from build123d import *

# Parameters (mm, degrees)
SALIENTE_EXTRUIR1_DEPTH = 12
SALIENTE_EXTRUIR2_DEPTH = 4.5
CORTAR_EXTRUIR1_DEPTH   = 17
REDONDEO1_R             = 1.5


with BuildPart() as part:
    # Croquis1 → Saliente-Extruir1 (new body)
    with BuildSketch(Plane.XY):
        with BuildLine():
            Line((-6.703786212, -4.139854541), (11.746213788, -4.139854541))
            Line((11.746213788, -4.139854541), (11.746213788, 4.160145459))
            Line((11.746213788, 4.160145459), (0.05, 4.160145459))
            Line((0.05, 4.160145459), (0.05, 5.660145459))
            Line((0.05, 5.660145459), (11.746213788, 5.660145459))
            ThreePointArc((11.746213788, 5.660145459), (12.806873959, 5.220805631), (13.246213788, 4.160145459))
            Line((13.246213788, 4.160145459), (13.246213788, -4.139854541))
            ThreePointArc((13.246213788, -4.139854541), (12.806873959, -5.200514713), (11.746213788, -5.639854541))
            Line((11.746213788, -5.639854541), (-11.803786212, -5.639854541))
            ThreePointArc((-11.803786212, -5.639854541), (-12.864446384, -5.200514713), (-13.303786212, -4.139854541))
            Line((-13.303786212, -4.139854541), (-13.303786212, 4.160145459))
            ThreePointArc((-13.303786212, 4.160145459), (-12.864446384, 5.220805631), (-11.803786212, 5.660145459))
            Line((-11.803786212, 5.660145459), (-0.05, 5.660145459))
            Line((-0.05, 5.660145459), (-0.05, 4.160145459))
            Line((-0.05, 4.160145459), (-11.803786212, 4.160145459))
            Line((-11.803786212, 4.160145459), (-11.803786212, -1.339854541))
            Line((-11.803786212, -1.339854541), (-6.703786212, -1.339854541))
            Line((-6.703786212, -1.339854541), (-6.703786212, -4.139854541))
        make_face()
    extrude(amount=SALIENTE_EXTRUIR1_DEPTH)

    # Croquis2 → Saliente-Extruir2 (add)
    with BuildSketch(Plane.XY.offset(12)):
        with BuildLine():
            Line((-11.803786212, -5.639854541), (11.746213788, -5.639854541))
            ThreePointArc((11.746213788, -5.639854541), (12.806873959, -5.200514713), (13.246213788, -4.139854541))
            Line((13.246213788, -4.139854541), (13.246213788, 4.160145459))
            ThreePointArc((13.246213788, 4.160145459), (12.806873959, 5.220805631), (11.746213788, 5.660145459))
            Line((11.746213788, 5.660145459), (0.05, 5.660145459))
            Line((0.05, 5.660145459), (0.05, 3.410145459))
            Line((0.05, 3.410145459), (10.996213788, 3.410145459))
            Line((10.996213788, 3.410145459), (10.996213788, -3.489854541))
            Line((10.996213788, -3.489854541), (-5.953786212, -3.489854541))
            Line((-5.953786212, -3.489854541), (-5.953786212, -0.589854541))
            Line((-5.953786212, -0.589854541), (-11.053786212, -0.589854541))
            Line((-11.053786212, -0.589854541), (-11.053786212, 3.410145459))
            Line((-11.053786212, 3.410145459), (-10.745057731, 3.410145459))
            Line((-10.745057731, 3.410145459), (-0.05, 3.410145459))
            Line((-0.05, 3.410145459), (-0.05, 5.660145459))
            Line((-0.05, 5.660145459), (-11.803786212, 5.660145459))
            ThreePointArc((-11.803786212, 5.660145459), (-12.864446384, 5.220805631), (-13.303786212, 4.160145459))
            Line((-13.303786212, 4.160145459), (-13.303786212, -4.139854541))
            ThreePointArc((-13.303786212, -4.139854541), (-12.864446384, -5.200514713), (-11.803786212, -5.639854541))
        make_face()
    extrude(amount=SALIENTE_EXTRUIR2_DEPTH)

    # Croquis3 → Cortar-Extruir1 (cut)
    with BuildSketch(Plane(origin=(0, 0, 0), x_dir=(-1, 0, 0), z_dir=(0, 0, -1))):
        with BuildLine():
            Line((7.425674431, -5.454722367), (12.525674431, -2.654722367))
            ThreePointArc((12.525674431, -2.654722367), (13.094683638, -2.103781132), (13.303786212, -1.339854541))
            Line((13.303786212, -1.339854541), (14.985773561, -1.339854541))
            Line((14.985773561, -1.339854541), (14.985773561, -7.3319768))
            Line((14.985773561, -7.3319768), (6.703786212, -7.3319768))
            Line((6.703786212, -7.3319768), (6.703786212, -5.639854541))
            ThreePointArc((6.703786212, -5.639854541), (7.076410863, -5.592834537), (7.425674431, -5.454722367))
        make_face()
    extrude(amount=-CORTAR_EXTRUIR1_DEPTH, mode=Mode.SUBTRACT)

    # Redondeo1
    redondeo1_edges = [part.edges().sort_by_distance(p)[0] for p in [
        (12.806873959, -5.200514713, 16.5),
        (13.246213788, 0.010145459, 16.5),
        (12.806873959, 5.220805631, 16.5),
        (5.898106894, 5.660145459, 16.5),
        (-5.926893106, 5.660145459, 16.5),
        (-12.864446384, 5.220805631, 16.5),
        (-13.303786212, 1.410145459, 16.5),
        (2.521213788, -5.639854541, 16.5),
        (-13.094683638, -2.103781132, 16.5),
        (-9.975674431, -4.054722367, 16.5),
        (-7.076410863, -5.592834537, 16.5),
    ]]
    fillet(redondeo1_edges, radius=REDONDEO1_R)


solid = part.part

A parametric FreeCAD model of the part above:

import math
import FreeCAD as App
import Part
import Sketcher

V = App.Vector


def edges_at(feature, points):
    """Names of the edges that pass closest to the given points."""
    edges = feature.Shape.Edges
    near = lambda p: min(range(len(edges)), key=lambda i: edges[i].distToShape(Part.Vertex(*p))[0])
    return sorted({f"Edge{near(p) + 1}" for p in points})

doc = App.newDocument("Part")
params = doc.addObject("Spreadsheet::Sheet", "Params")
for row, (alias, value) in enumerate([
    ("sketch1_radius", "1.5 mm"),
    ("sketch1_width", "5.1 mm"),
    ("sketch1_height", "2.8 mm"),
    ("sketch1_height2", "5.5 mm"),
    ("sketch1_width2", "18.45 mm"),
    ("pad1_length", "12 mm"),
    ("sketch2_radius", "1.5 mm"),
    ("sketch2_height", "4 mm"),
    ("sketch2_width", "5.1 mm"),
    ("sketch2_height2", "8.3 mm"),
    ("sketch2_height3", "6.9 mm"),
    ("pad2_length", "4.5 mm"),
    ("sketch3_radius", "1.5 mm"),
    ("pocket1_length", "17 mm"),
    ("fillet_radius", "1.5 mm"),
], start=1):
    params.set(f"A{row}", alias)
    params.set(f"B{row}", "=" + value)
    params.setAlias(f"B{row}", alias)

body = doc.addObject("PartDesign::Body", "Body")

# Sketch on XY plane
sketch1 = body.newObject("Sketcher::SketchObject", "Sketch")
sketch1.AttachmentSupport = (doc.getObject("XY_Plane"), [""])
sketch1.MapMode = "FlatFace"
sketch1.addGeometry([
    Part.LineSegment(V(11.7, -4.1, 0), V(-6.7, -4.1, 0)),  # 0
    Part.LineSegment(V(-6.7, -4.1, 0), V(-6.7, -1.3, 0)),  # 1
    Part.LineSegment(V(-6.7, -1.3, 0), V(-11.8, -1.3, 0)),  # 2
    Part.LineSegment(V(-11.8, -1.3, 0), V(-11.8, 4.2, 0)),  # 3
    Part.LineSegment(V(-11.8, 4.2, 0), V(-0.1, 4.2, 0)),  # 4
    Part.LineSegment(V(-0.1, 4.2, 0), V(-0.1, 5.7, 0)),  # 5
    Part.LineSegment(V(-0.1, 5.7, 0), V(-11.8, 5.7, 0)),  # 6
    Part.ArcOfCircle(Part.Circle(V(-11.8, 4.2, 0), V(0, 0, 1), 1.5), math.radians(90), math.radians(180)),  # 7
    Part.LineSegment(V(-13.3, 4.2, 0), V(-13.3, -4.1, 0)),  # 8
    Part.ArcOfCircle(Part.Circle(V(-11.8, -4.1, 0), V(0, 0, 1), 1.5), math.radians(180), math.radians(270)),  # 9
    Part.LineSegment(V(-11.8, -5.6, 0), V(11.7, -5.6, 0)),  # 10
    Part.ArcOfCircle(Part.Circle(V(11.7, -4.1, 0), V(0, 0, 1), 1.5), math.radians(-90), math.radians(0)),  # 11
    Part.LineSegment(V(13.2, -4.1, 0), V(13.2, 4.2, 0)),  # 12
    Part.ArcOfCircle(Part.Circle(V(11.7, 4.2, 0), V(0, 0, 1), 1.5), math.radians(0), math.radians(90)),  # 13
    Part.LineSegment(V(11.7, 5.7, 0), V(0.1, 5.7, 0)),  # 14
    Part.LineSegment(V(0.1, 5.7, 0), V(0.1, 4.2, 0)),  # 15
    Part.LineSegment(V(0.1, 4.2, 0), V(11.7, 4.2, 0)),  # 16
    Part.LineSegment(V(11.7, 4.2, 0), V(11.7, -4.1, 0)),  # 17
], False)
sketch1.addConstraint([
    Sketcher.Constraint("Coincident", 0, 2, 1, 1),
    Sketcher.Constraint("Coincident", 1, 2, 2, 1),
    Sketcher.Constraint("Coincident", 2, 2, 3, 1),
    Sketcher.Constraint("Coincident", 3, 2, 4, 1),
    Sketcher.Constraint("Coincident", 4, 2, 5, 1),
    Sketcher.Constraint("Coincident", 5, 2, 6, 1),
    Sketcher.Constraint("Tangent", 6, 2, 7, 1),
    Sketcher.Constraint("Tangent", 7, 2, 8, 1),
    Sketcher.Constraint("Tangent", 8, 2, 9, 1),
    Sketcher.Constraint("Tangent", 9, 2, 10, 1),
    Sketcher.Constraint("Tangent", 10, 2, 11, 1),
    Sketcher.Constraint("Tangent", 11, 2, 12, 1),
    Sketcher.Constraint("Tangent", 12, 2, 13, 1),
    Sketcher.Constraint("Tangent", 13, 2, 14, 1),
    Sketcher.Constraint("Coincident", 14, 2, 15, 1),
    Sketcher.Constraint("Coincident", 15, 2, 16, 1),
    Sketcher.Constraint("Coincident", 16, 2, 17, 1),
    Sketcher.Constraint("Coincident", 17, 2, 0, 1),
    Sketcher.Constraint("Horizontal", 0),
    Sketcher.Constraint("Vertical", 1),
    Sketcher.Constraint("Horizontal", 2),
    Sketcher.Constraint("Vertical", 3),
    Sketcher.Constraint("Horizontal", 4),
    Sketcher.Constraint("Vertical", 5),
    Sketcher.Constraint("Horizontal", 6),
    Sketcher.Constraint("Vertical", 8),
    Sketcher.Constraint("Horizontal", 10),
    Sketcher.Constraint("Vertical", 12),
    Sketcher.Constraint("Horizontal", 14),
    Sketcher.Constraint("Vertical", 15),
    Sketcher.Constraint("Horizontal", 16),
    Sketcher.Constraint("Vertical", 17),
    Sketcher.Constraint("Coincident", 3, 2, 7, 3),
    Sketcher.Constraint("Coincident", 16, 2, 13, 3),
    Sketcher.Constraint("Coincident", 17, 2, 11, 3),
    Sketcher.Constraint("Equal", 7, 9),
    Sketcher.Constraint("Equal", 9, 11),
    Sketcher.Constraint("Symmetric", 5, 2, 14, 2, -2),
    Sketcher.Constraint("Radius", 7, 1.5),
    Sketcher.Constraint("DistanceX", 2, 2, 2, 1, 5.1),
    Sketcher.Constraint("DistanceY", 1, 1, 1, 2, 2.8),
    Sketcher.Constraint("DistanceY", 3, 1, 3, 2, 5.5),
    Sketcher.Constraint("DistanceX", 0, 2, 0, 1, 18.45),
    Sketcher.Constraint("DistanceX", 5, 2, 14, 2, 0.1),
    Sketcher.Constraint("DistanceX", 4, 1, 4, 2, 11.753786),
    Sketcher.Constraint("DistanceY", -1, 1, 7, 3, 4.160145),
])
sketch1.setExpression("Constraints[38]", "Params.sketch1_radius")
sketch1.setExpression("Constraints[39]", "Params.sketch1_width")
sketch1.setExpression("Constraints[40]", "Params.sketch1_height")
sketch1.setExpression("Constraints[41]", "Params.sketch1_height2")
sketch1.setExpression("Constraints[42]", "Params.sketch1_width2")
pad1 = body.newObject("PartDesign::Pad", "Pad")
pad1.Profile = sketch1
pad1.setExpression("Length", "Params.pad1_length")

# Sketch on XY plane
sketch2 = body.newObject("Sketcher::SketchObject", "Sketch001")
sketch2.AttachmentSupport = (doc.getObject("XY_Plane"), [""])
sketch2.MapMode = "FlatFace"
sketch2.AttachmentOffset = App.Placement(V(0, 0, 12), App.Rotation())
sketch2.addGeometry([
    Part.LineSegment(V(-11.8, -5.6, 0), V(11.7, -5.6, 0)),  # 0
    Part.ArcOfCircle(Part.Circle(V(11.7, -4.1, 0), V(0, 0, 1), 1.5), math.radians(-90), math.radians(0)),  # 1
    Part.LineSegment(V(13.2, -4.1, 0), V(13.2, 4.2, 0)),  # 2
    Part.ArcOfCircle(Part.Circle(V(11.7, 4.2, 0), V(0, 0, 1), 1.5), math.radians(0), math.radians(90)),  # 3
    Part.LineSegment(V(11.7, 5.7, 0), V(0.1, 5.7, 0)),  # 4
    Part.LineSegment(V(0.1, 5.7, 0), V(0.1, 3.4, 0)),  # 5
    Part.LineSegment(V(0.1, 3.4, 0), V(11, 3.4, 0)),  # 6
    Part.LineSegment(V(11, 3.4, 0), V(11, -3.5, 0)),  # 7
    Part.LineSegment(V(11, -3.5, 0), V(-6, -3.5, 0)),  # 8
    Part.LineSegment(V(-6, -3.5, 0), V(-6, -0.6, 0)),  # 9
    Part.LineSegment(V(-6, -0.6, 0), V(-11.1, -0.6, 0)),  # 10
    Part.LineSegment(V(-11.1, -0.6, 0), V(-11.1, 3.4, 0)),  # 11
    Part.LineSegment(V(-11.1, 3.4, 0), V(-0.1, 3.4, 0)),  # 12
    Part.LineSegment(V(-0.1, 3.4, 0), V(-0.1, 5.7, 0)),  # 13
    Part.LineSegment(V(-0.1, 5.7, 0), V(-11.8, 5.7, 0)),  # 14
    Part.ArcOfCircle(Part.Circle(V(-11.8, 4.2, 0), V(0, 0, 1), 1.5), math.radians(90), math.radians(180)),  # 15
    Part.LineSegment(V(-13.3, 4.2, 0), V(-13.3, -4.1, 0)),  # 16
    Part.ArcOfCircle(Part.Circle(V(-11.8, -4.1, 0), V(0, 0, 1), 1.5), math.radians(180), math.radians(270)),  # 17
], False)
sketch2.addConstraint([
    Sketcher.Constraint("Tangent", 0, 2, 1, 1),
    Sketcher.Constraint("Tangent", 1, 2, 2, 1),
    Sketcher.Constraint("Tangent", 2, 2, 3, 1),
    Sketcher.Constraint("Tangent", 3, 2, 4, 1),
    Sketcher.Constraint("Coincident", 4, 2, 5, 1),
    Sketcher.Constraint("Coincident", 5, 2, 6, 1),
    Sketcher.Constraint("Coincident", 6, 2, 7, 1),
    Sketcher.Constraint("Coincident", 7, 2, 8, 1),
    Sketcher.Constraint("Coincident", 8, 2, 9, 1),
    Sketcher.Constraint("Coincident", 9, 2, 10, 1),
    Sketcher.Constraint("Coincident", 10, 2, 11, 1),
    Sketcher.Constraint("Coincident", 11, 2, 12, 1),
    Sketcher.Constraint("Coincident", 12, 2, 13, 1),
    Sketcher.Constraint("Coincident", 13, 2, 14, 1),
    Sketcher.Constraint("Tangent", 14, 2, 15, 1),
    Sketcher.Constraint("Tangent", 15, 2, 16, 1),
    Sketcher.Constraint("Tangent", 16, 2, 17, 1),
    Sketcher.Constraint("Tangent", 17, 2, 0, 1),
    Sketcher.Constraint("Horizontal", 0),
    Sketcher.Constraint("Vertical", 2),
    Sketcher.Constraint("Horizontal", 4),
    Sketcher.Constraint("Vertical", 5),
    Sketcher.Constraint("Horizontal", 6),
    Sketcher.Constraint("Vertical", 7),
    Sketcher.Constraint("Horizontal", 8),
    Sketcher.Constraint("Vertical", 9),
    Sketcher.Constraint("Horizontal", 10),
    Sketcher.Constraint("Vertical", 11),
    Sketcher.Constraint("Horizontal", 12),
    Sketcher.Constraint("Vertical", 13),
    Sketcher.Constraint("Horizontal", 14),
    Sketcher.Constraint("Vertical", 16),
    Sketcher.Constraint("Equal", 1, 3),
    Sketcher.Constraint("Equal", 3, 15),
    Sketcher.Constraint("Equal", 15, 17),
    Sketcher.Constraint("Symmetric", 5, 2, 12, 2, -2),
    Sketcher.Constraint("Horizontal", 3, 3, 15, 3),
    Sketcher.Constraint("Radius", 1, 1.5),
    Sketcher.Constraint("DistanceY", 11, 1, 11, 2, 4.0),
    Sketcher.Constraint("DistanceX", 10, 2, 10, 1, 5.1),
    Sketcher.Constraint("DistanceY", 2, 1, 2, 2, 8.3),
    Sketcher.Constraint("DistanceY", 7, 2, 7, 1, 6.9),
    Sketcher.Constraint("DistanceX", 0, 1, 0, 2, 23.55),
    Sketcher.Constraint("DistanceX", 8, 2, 8, 1, 16.95),
    Sketcher.Constraint("DistanceY", 5, 2, 5, 1, 2.25),
    Sketcher.Constraint("DistanceX", 12, 2, 5, 2, 0.1),
    Sketcher.Constraint("DistanceX", 6, 2, 3, 3, 0.75),
    Sketcher.Constraint("DistanceX", 4, 2, 4, 1, 11.696214),
    Sketcher.Constraint("DistanceY", 1, 3, -1, 1, 4.139855),
])
sketch2.setExpression("Constraints[37]", "Params.sketch2_radius")
sketch2.setExpression("Constraints[38]", "Params.sketch2_height")
sketch2.setExpression("Constraints[39]", "Params.sketch2_width")
sketch2.setExpression("Constraints[40]", "Params.sketch2_height2")
sketch2.setExpression("Constraints[41]", "Params.sketch2_height3")
pad2 = body.newObject("PartDesign::Pad", "Pad001")
pad2.Profile = sketch2
pad2.setExpression("Length", "Params.pad2_length")

# Sketch on XY plane
sketch3 = body.newObject("Sketcher::SketchObject", "Sketch002")
sketch3.AttachmentSupport = (doc.getObject("XY_Plane"), [""])
sketch3.MapMode = "FlatFace"
sketch3.addGeometry([
    Part.LineSegment(V(-12.5, -2.7, 0), V(-7.4, -5.5, 0)),  # 0
    Part.ArcOfCircle(Part.Circle(V(-6.7, -4.1, 0), V(0, 0, 1), 1.5), math.radians(-119), math.radians(-90)),  # 1
    Part.LineSegment(V(-6.7, -5.6, 0), V(-6.7, -7.3, 0)),  # 2
    Part.LineSegment(V(-6.7, -7.3, 0), V(-15, -7.3, 0)),  # 3
    Part.LineSegment(V(-15, -7.3, 0), V(-15, -1.3, 0)),  # 4
    Part.LineSegment(V(-15, -1.3, 0), V(-13.3, -1.3, 0)),  # 5
    Part.ArcOfCircle(Part.Circle(V(-11.8, -1.3, 0), V(0, 0, 1), 1.5), math.radians(180), math.radians(241)),  # 6
], False)
sketch3.addConstraint([
    Sketcher.Constraint("Tangent", 0, 2, 1, 1),
    Sketcher.Constraint("Coincident", 1, 2, 2, 1),
    Sketcher.Constraint("Coincident", 2, 2, 3, 1),
    Sketcher.Constraint("Coincident", 3, 2, 4, 1),
    Sketcher.Constraint("Coincident", 4, 2, 5, 1),
    Sketcher.Constraint("Coincident", 5, 2, 6, 1),
    Sketcher.Constraint("Tangent", 6, 2, 0, 1),
    Sketcher.Constraint("Vertical", 2),
    Sketcher.Constraint("Horizontal", 3),
    Sketcher.Constraint("Vertical", 4),
    Sketcher.Constraint("Horizontal", 5),
    Sketcher.Constraint("Equal", 1, 6),
    Sketcher.Constraint("Horizontal", 6, 3, 4, 2),
    Sketcher.Constraint("Radius", 1, 1.5),
    Sketcher.Constraint("DistanceX", 6, 3, 1, 3, 5.1),
    Sketcher.Constraint("DistanceY", 1, 3, 6, 3, 2.8),
    Sketcher.Constraint("DistanceX", 6, 3, 1, 2, 5.1),
    Sketcher.Constraint("DistanceX", 3, 2, 0, 2, 7.560099),
    Sketcher.Constraint("DistanceY", 2, 2, 2, 1, 1.692122),
    Sketcher.Constraint("DistanceX", 1, 3, -1, 1, 6.703786),
    Sketcher.Constraint("DistanceY", 1, 3, -1, 1, 4.139855),
])
sketch3.setExpression("Constraints[13]", "Params.sketch3_radius")
pocket1 = body.newObject("PartDesign::Pocket", "Pocket")
pocket1.Profile = sketch3
pocket1.setExpression("Length", "Params.pocket1_length")
pocket1.Reversed = True
doc.recompute()

fillet = body.newObject("PartDesign::Fillet", "Fillet")
fillet.Base = (pocket1, edges_at(pocket1, [
    (12.807, -5.201, 16.5),
    (13.246, 0.01, 16.5),
    (12.807, 5.221, 16.5),
    (5.898, 5.66, 16.5),
    (-5.927, 5.66, 16.5),
    (-12.864, 5.221, 16.5),
    (-13.304, 1.41, 16.5),
    (2.521, -5.64, 16.5),
    (-13.095, -2.104, 16.5),
    (-9.976, -4.055, 16.5),
    (-7.076, -5.593, 16.5),
]))
fillet.setExpression("Radius", "Params.fillet_radius")

doc.recompute()
